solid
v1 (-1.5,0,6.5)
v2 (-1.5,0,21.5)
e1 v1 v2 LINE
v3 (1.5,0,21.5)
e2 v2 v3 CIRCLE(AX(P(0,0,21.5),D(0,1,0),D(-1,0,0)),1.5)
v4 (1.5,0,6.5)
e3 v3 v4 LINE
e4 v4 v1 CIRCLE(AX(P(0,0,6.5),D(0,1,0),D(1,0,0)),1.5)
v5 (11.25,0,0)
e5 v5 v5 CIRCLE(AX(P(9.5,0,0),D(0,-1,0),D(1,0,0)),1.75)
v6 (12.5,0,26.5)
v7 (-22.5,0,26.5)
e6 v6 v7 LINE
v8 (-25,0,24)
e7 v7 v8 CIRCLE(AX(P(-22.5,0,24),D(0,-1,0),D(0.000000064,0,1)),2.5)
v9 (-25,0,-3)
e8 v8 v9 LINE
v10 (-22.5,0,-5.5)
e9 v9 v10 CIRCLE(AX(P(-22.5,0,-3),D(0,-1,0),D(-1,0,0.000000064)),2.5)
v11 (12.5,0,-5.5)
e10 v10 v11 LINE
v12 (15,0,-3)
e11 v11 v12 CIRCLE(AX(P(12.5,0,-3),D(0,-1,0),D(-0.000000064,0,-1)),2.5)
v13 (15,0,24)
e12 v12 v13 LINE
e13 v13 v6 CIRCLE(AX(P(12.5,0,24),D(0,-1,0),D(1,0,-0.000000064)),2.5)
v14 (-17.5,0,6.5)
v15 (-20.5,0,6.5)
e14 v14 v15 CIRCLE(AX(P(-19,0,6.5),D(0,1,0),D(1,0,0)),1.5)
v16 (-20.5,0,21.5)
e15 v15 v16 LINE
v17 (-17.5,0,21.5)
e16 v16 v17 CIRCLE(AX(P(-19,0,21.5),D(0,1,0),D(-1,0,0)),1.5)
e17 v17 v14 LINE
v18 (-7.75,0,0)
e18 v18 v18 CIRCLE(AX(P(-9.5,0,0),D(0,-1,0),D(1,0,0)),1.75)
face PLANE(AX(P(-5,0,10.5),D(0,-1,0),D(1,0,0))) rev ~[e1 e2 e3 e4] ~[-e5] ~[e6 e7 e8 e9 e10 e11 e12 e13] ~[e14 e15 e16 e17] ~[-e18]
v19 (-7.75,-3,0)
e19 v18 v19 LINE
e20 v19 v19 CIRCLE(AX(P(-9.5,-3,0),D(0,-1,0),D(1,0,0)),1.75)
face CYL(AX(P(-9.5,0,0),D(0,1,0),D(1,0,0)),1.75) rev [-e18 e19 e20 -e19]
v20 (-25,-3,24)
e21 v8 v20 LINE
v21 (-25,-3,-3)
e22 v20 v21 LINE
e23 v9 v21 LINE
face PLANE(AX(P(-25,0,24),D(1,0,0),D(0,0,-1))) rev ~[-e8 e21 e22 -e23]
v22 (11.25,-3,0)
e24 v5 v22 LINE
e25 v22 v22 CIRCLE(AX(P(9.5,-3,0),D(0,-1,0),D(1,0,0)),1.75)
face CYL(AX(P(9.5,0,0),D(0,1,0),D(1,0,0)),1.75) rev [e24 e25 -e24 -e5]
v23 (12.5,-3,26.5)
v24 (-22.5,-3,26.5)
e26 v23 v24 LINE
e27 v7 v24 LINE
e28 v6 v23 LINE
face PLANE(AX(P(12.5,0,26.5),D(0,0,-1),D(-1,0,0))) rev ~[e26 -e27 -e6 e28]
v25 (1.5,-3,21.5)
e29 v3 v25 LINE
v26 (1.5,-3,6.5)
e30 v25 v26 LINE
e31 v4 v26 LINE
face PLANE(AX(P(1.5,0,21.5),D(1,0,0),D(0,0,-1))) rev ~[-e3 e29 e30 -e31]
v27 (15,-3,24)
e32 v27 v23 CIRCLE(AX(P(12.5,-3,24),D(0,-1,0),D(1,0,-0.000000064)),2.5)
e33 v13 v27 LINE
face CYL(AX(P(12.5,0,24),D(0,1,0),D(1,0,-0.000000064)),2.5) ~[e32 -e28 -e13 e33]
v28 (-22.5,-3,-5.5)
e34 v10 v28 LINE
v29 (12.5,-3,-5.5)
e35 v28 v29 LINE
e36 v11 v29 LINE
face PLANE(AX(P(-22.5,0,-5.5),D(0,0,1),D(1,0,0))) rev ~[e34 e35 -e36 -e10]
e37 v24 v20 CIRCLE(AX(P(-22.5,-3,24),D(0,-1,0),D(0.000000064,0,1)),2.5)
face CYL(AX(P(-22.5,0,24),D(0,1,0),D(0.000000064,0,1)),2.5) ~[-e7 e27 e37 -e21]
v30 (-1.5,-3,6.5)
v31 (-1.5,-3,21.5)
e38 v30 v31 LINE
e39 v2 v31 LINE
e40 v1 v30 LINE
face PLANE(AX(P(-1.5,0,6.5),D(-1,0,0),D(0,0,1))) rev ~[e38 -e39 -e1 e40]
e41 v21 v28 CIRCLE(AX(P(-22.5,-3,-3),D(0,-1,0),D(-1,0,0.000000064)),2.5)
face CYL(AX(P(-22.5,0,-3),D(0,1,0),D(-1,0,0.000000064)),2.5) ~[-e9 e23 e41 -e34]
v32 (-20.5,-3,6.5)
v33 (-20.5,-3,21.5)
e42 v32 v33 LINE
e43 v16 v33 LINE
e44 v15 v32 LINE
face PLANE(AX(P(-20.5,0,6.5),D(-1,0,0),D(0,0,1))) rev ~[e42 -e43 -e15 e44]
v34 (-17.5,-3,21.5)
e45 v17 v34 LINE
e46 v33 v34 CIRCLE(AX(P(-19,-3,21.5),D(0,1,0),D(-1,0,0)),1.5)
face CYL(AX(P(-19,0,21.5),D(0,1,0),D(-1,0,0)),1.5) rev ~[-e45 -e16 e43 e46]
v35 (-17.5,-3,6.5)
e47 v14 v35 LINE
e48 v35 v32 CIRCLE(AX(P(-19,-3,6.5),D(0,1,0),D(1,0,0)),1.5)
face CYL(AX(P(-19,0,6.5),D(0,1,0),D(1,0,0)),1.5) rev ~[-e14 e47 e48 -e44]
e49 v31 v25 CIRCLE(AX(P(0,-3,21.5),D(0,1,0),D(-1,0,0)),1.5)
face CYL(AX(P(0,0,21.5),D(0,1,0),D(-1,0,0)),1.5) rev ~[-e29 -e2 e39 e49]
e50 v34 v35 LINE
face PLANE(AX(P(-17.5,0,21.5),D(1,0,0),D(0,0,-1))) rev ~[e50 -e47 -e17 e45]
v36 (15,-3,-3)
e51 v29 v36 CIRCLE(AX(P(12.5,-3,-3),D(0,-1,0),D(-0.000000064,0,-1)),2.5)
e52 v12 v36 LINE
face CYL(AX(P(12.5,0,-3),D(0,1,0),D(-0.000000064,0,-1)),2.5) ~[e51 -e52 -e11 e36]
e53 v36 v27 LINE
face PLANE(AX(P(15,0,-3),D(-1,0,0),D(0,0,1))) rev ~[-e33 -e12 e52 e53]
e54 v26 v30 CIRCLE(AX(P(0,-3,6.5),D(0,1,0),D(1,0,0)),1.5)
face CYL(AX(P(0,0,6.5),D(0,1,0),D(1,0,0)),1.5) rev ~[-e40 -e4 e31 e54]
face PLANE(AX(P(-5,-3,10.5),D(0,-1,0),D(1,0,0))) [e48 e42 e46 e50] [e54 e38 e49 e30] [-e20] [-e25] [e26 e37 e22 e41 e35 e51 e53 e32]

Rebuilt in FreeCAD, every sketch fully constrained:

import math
import FreeCAD as App
import Part
import Sketcher
Q = App.Units.Quantity

doc = App.newDocument("Part")
params = doc.addObject("Spreadsheet::Sheet", "Params")
for row, (alias, value) in enumerate([
    ("sketch1_diameter", "3.5 mm"),
    ("sketch1_radius", "2.5 mm"),
    ("sketch1_radius2", "1.5 mm"),
    ("sketch1_width", "35 mm"),
    ("sketch1_height", "27 mm"),
    ("pad1_length", "3 mm"),
], start=1):
    params.set(f"A{row}", alias)
    params.set(f"B{row}", "=" + value)
    params.setAlias(f"B{row}", alias)

body = doc.addObject("PartDesign::Body", "Body")

sketch1 = body.newObject("Sketcher::SketchObject", "Sketch")
sketch1.AttachmentSupport = (doc.getObject("XZ_Plane"), [""])
sketch1.MapMode = "FlatFace"
sketch1.addGeometry([
    Part.LineSegment(App.Vector(-22.5, -5.5, 0), App.Vector(12.5, -5.5, 0)),
    Part.ArcOfCircle(Part.Circle(App.Vector(12.5, -3, 0), App.Vector(0, 0, 1), 2.5), math.radians(-90.000004), math.radians(0.000004)),
    Part.LineSegment(App.Vector(15, -3, 0), App.Vector(15, 24, 0)),
    Part.ArcOfCircle(Part.Circle(App.Vector(12.5, 24, 0), App.Vector(0, 0, 1), 2.5), math.radians(-0.000004), math.radians(90.000004)),
    Part.LineSegment(App.Vector(12.5, 26.5, 0), App.Vector(-22.5, 26.5, 0)),
    Part.ArcOfCircle(Part.Circle(App.Vector(-22.5, 24, 0), App.Vector(0, 0, 1), 2.5), math.radians(89.999996), math.radians(180.000004)),
    Part.LineSegment(App.Vector(-25, 24, 0), App.Vector(-25, -3, 0)),
    Part.ArcOfCircle(Part.Circle(App.Vector(-22.5, -3, 0), App.Vector(0, 0, 1), 2.5), math.radians(179.999996), math.radians(270.000004)),
    Part.Circle(App.Vector(-9.5, 0, 0), App.Vector(0, 0, 1), 1.75),
    Part.Circle(App.Vector(9.5, 0, 0), App.Vector(0, 0, 1), 1.75),
    Part.ArcOfCircle(Part.Circle(App.Vector(-19, 6.5, 0), App.Vector(0, 0, 1), 1.5), math.radians(180), math.radians(360)),
    Part.LineSegment(App.Vector(-20.5, 6.5, 0), App.Vector(-20.5, 21.5, 0)),
    Part.ArcOfCircle(Part.Circle(App.Vector(-19, 21.5, 0), App.Vector(0, 0, 1), 1.5), math.radians(0), math.radians(180)),
    Part.LineSegment(App.Vector(-17.5, 21.5, 0), App.Vector(-17.5, 6.5, 0)),
    Part.ArcOfCircle(Part.Circle(App.Vector(0, 21.5, 0), App.Vector(0, 0, 1), 1.5), math.radians(0), math.radians(180)),
    Part.LineSegment(App.Vector(1.5, 21.5, 0), App.Vector(1.5, 6.5, 0)),
    Part.ArcOfCircle(Part.Circle(App.Vector(0, 6.5, 0), App.Vector(0, 0, 1), 1.5), math.radians(180), math.radians(360)),
    Part.LineSegment(App.Vector(-1.5, 6.5, 0), App.Vector(-1.5, 21.5, 0)),
], False)
sketch1.addConstraint([
    Sketcher.Constraint("Tangent", 0, 2, 1, 1),
    Sketcher.Constraint("Tangent", 1, 2, 2, 1),
    Sketcher.Constraint("Tangent", 2, 2, 3, 1),
    Sketcher.Constraint("Tangent", 3, 2, 4, 1),
    Sketcher.Constraint("Tangent", 4, 2, 5, 1),
    Sketcher.Constraint("Tangent", 5, 2, 6, 1),
    Sketcher.Constraint("Tangent", 6, 2, 7, 1),
    Sketcher.Constraint("Tangent", 7, 2, 0, 1),
    Sketcher.Constraint("Tangent", 10, 1, 11, 1),
    Sketcher.Constraint("Tangent", 11, 2, 12, 2),
    Sketcher.Constraint("Tangent", 12, 1, 13, 1),
    Sketcher.Constraint("Tangent", 13, 2, 10, 2),
    Sketcher.Constraint("Tangent", 14, 1, 15, 1),
    Sketcher.Constraint("Tangent", 15, 2, 16, 2),
    Sketcher.Constraint("Tangent", 16, 1, 17, 1),
    Sketcher.Constraint("Tangent", 17, 2, 14, 2),
    Sketcher.Constraint("Horizontal", 0),
    Sketcher.Constraint("Vertical", 2),
    Sketcher.Constraint("Horizontal", 4),
    Sketcher.Constraint("Vertical", 6),
    Sketcher.Constraint("Vertical", 11),
    Sketcher.Constraint("Vertical", 13),
    Sketcher.Constraint("Vertical", 15),
    Sketcher.Constraint("Vertical", 17),
    Sketcher.Constraint("Equal", 1, 3),
    Sketcher.Constraint("Equal", 3, 5),
    Sketcher.Constraint("Equal", 5, 7),
    Sketcher.Constraint("Equal", 8, 9),
    Sketcher.Constraint("Equal", 12, 14),
    Sketcher.Constraint("Symmetric", 8, 3, 9, 3, -1, 1),
    Sketcher.Constraint("PointOnObject", 8, 3, -1),
    Sketcher.Constraint("PointOnObject", 14, 3, -2),
    Sketcher.Constraint("Horizontal", 12, 3, 14, 3),
    Sketcher.Constraint("Horizontal", 10, 3, 16, 3),
    Sketcher.Constraint("Diameter", 8, Q("3.5 mm")),
    Sketcher.Constraint("Radius", 1, Q("2.5 mm")),
    Sketcher.Constraint("Radius", 10, Q("1.5 mm")),
    Sketcher.Constraint("DistanceX", 0, 1, 0, 2, Q("35 mm")),
    Sketcher.Constraint("DistanceY", 2, 1, 2, 2, Q("27 mm")),
    Sketcher.Constraint("DistanceY", 11, 1, 11, 2, Q("15 mm")),
    Sketcher.Constraint("DistanceY", 1, 3, -1, 1, Q("3 mm")),
    Sketcher.Constraint("DistanceX", 10, 3, -1, 1, Q("19 mm")),
    Sketcher.Constraint("DistanceX", -1, 1, 1, 2, Q("15 mm")),
    Sketcher.Constraint("DistanceX", 7, 3, 8, 3, Q("13 mm")),
    Sketcher.Constraint("DistanceY", 0, 2, 16, 3, Q("12 mm")),
])
sketch1.setExpression("Constraints[34]", "Params.sketch1_diameter")
sketch1.setExpression("Constraints[35]", "Params.sketch1_radius")
sketch1.setExpression("Constraints[36]", "Params.sketch1_radius2")
sketch1.setExpression("Constraints[37]", "Params.sketch1_width")
sketch1.setExpression("Constraints[38]", "Params.sketch1_height")
pad1 = body.newObject("PartDesign::Pad", "Pad")
pad1.Profile = sketch1
pad1.setExpression("Length", "Params.pad1_length")

doc.recompute()
